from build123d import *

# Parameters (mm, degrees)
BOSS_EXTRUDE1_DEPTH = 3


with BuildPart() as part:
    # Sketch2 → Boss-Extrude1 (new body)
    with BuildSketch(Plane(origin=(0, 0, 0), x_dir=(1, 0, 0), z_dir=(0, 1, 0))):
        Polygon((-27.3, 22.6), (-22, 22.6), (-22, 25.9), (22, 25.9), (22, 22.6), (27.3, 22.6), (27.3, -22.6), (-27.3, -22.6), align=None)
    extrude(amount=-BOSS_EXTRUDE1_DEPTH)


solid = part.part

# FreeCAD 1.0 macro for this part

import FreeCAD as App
import Part
import Sketcher
from FreeCAD import Vector


def add_polygon(sketch, points):
    """Adds a closed chain of lines whose ends are joined by coincident constraints."""
    first, n = sketch.GeometryCount, len(points)
    for a, b in zip(points, points[1:] + points[:1]):
        sketch.addGeometry(Part.LineSegment(App.Vector(*a, 0), App.Vector(*b, 0)), False)
    for i in range(n):
        sketch.addConstraint(Sketcher.Constraint("Coincident", first + i, 2, first + (i + 1) % n, 1))

doc = App.newDocument("Part")
body = doc.addObject("PartDesign::Body", "Body")

# Sketch on XZ plane
sketch1 = body.newObject("Sketcher::SketchObject", "Sketch")
sketch1.AttachmentSupport = (doc.getObject("XZ_Plane"), [""])
sketch1.MapMode = "FlatFace"
add_polygon(sketch1, [(-22, -22.6), (-27.3, -22.6), (-27.3, 22.6), (27.3, 22.6), (27.3, -22.6), (22, -22.6), (22, -25.9), (-22, -25.9)])  # lines 0-7
sketch1.addConstraint([
    Sketcher.Constraint("Horizontal", 0),
    Sketcher.Constraint("Vertical", 1),
    Sketcher.Constraint("Horizontal", 2),
    Sketcher.Constraint("Vertical", 3),
    Sketcher.Constraint("Horizontal", 4),
    Sketcher.Constraint("Vertical", 5),
    Sketcher.Constraint("Horizontal", 6),
    Sketcher.Constraint("Vertical", 7),
    Sketcher.Constraint("Symmetric", 0, 2, 2, 2, -1, 1),
    Sketcher.Constraint("Symmetric", 4, 2, 7, 2, -2),
    Sketcher.Constraint("DistanceX", 6, 2, 6, 1, 44.0),
    Sketcher.Constraint("DistanceX", 0, 2, 0, 1, 5.3),
    Sketcher.Constraint("DistanceY", 1, 1, 1, 2, 45.2),
    Sketcher.Constraint("DistanceY", 5, 2, 5, 1, 3.3),
])
pad1 = body.newObject("PartDesign::Pad", "Pad")
pad1.Profile = sketch1
pad1.Length = 3

doc.recompute()
